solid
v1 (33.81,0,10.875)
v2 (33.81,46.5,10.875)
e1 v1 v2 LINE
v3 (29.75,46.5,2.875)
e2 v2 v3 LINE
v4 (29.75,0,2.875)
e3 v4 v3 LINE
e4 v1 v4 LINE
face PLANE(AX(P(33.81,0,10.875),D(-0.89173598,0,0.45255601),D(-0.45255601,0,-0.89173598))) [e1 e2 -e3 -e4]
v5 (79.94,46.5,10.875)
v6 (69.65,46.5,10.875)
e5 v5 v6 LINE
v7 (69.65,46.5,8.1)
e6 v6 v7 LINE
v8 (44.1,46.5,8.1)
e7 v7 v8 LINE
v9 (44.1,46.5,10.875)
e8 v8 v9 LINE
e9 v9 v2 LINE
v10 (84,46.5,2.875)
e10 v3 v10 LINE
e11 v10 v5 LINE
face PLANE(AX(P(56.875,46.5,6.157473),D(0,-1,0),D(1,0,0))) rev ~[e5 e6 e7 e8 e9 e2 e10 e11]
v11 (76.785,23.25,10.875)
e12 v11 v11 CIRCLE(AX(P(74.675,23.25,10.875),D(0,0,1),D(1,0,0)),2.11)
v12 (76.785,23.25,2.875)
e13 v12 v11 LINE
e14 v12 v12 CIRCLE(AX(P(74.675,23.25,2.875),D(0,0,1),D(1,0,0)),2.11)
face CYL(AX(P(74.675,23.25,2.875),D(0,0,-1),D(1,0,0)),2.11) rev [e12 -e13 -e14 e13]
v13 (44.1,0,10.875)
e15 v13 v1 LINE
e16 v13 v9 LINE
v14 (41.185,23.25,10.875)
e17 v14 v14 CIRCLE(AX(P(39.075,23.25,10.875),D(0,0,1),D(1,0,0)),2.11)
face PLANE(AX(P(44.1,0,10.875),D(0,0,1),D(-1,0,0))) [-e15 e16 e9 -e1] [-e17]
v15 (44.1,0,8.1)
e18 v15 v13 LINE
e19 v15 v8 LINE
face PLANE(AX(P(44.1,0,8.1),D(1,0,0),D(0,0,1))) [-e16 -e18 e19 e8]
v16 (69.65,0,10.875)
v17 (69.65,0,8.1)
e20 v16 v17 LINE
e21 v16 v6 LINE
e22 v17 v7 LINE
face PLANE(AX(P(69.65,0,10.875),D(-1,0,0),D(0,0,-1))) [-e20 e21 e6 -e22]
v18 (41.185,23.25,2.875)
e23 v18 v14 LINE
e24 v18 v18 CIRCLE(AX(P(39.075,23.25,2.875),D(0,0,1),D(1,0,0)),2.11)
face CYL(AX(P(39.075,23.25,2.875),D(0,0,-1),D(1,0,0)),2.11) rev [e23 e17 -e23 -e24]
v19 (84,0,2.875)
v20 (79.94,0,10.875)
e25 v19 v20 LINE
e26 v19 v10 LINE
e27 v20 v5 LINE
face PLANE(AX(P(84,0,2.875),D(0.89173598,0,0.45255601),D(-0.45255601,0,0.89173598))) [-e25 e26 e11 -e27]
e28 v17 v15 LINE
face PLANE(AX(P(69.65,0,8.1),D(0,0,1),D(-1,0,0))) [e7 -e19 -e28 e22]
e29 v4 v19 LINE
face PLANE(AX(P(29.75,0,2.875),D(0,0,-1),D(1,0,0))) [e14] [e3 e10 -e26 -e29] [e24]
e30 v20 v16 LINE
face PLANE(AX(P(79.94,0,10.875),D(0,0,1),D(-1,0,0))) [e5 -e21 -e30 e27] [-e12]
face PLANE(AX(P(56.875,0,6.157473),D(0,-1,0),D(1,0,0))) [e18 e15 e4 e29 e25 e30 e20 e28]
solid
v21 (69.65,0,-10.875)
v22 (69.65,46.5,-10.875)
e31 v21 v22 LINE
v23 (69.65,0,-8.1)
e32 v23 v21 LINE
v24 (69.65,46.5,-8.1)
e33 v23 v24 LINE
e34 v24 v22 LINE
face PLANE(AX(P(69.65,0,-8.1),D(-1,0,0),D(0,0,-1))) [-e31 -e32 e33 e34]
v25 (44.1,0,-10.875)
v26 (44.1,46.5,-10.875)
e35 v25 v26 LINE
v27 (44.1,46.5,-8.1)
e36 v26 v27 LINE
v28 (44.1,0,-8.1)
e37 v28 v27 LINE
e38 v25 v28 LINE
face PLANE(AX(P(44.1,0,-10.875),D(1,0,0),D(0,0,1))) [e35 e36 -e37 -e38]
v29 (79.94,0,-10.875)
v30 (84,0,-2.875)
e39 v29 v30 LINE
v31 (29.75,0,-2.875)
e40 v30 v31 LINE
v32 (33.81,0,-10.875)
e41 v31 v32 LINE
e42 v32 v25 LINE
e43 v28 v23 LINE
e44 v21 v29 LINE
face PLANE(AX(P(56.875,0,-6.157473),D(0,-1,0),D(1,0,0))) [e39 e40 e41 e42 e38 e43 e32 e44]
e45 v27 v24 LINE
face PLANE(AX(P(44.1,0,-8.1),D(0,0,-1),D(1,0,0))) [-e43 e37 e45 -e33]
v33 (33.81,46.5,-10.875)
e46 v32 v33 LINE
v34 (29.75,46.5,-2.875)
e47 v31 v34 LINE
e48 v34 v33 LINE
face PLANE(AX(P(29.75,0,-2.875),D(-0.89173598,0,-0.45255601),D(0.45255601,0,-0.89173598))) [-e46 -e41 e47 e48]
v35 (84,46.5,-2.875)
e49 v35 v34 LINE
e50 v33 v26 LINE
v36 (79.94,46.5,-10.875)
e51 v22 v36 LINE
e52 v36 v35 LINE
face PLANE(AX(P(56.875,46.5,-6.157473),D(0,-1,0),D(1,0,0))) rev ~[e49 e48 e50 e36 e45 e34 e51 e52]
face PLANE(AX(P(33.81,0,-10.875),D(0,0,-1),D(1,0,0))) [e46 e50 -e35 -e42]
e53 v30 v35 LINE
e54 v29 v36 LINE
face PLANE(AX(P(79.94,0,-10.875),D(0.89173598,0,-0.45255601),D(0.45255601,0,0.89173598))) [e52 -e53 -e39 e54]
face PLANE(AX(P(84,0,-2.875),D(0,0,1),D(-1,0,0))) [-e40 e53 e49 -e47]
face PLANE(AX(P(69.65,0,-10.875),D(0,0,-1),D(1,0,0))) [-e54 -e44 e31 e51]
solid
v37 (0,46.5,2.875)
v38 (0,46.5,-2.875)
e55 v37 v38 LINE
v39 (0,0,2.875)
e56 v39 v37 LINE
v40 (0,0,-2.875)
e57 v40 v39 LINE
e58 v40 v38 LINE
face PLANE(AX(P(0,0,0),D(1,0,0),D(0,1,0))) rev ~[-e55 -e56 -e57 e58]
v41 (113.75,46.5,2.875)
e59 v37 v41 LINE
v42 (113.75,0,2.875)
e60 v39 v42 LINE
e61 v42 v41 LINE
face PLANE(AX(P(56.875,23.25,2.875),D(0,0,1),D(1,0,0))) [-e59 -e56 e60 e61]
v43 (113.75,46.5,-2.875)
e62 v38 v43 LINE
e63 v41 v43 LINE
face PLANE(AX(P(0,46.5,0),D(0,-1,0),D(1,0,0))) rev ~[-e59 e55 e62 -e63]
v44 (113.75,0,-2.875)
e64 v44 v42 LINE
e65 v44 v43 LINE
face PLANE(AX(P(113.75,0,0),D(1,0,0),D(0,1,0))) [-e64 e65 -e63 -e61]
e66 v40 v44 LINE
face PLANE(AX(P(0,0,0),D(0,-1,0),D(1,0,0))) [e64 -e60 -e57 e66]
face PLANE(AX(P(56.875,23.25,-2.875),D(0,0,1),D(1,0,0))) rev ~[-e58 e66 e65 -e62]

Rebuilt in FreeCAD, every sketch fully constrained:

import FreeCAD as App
import Part
import Sketcher

V = App.Vector

doc = App.newDocument("Part")
body = doc.addObject("PartDesign::Body", "Body")

# Sketch on XY plane
sketch1 = doc.addObject("Sketcher::SketchObject", "Sketch")
body.addObject(sketch1)
sketch1.AttachmentSupport = (doc.XY_Plane, [""])
sketch1.MapMode = "FlatFace"
sketch1.addGeometry([
    Part.LineSegment(V(0, 46, 0), V(0, 0, 0)),
    Part.LineSegment(V(0, 0, 0), V(114, 0, 0)),
    Part.LineSegment(V(114, 0, 0), V(114, 46, 0)),
    Part.LineSegment(V(114, 46, 0), V(0, 46, 0)),
], False)
sketch1.addConstraint([
    Sketcher.Constraint("Coincident", 0, 2, 1, 1),
    Sketcher.Constraint("Coincident", 1, 2, 2, 1),
    Sketcher.Constraint("Coincident", 2, 2, 3, 1),
    Sketcher.Constraint("Coincident", 3, 2, 0, 1),
    Sketcher.Constraint("Vertical", 0),
    Sketcher.Constraint("Horizontal", 1),
    Sketcher.Constraint("Vertical", 2),
    Sketcher.Constraint("Horizontal", 3),
    Sketcher.Constraint("Coincident", 0, 2, -1, 1),
    Sketcher.Constraint("DistanceY", 0, 2, 0, 1, 46.5),
    Sketcher.Constraint("DistanceX", 1, 1, 1, 2, 113.75),
])
pad1 = doc.addObject("PartDesign::Pad", "Pad")
body.addObject(pad1)
pad1.Profile = sketch1
pad1.Length = 5.75
pad1.Midplane = True
body2 = doc.addObject("PartDesign::Body", "Body001")
body2.AllowCompound = True

# Sketch on XZ plane
sketch2 = doc.addObject("Sketcher::SketchObject", "Sketch001")
body2.addObject(sketch2)
sketch2.AttachmentSupport = (doc.getObject("XZ_Plane001"), [""])
sketch2.MapMode = "FlatFace"
sketch2.addGeometry([
    Part.LineSegment(V(84, -2.9, 0), V(29.8, -2.9, 0)),  # 0
    Part.LineSegment(V(29.8, -2.9, 0), V(33.8, -10.9, 0)),  # 1
    Part.LineSegment(V(33.8, -10.9, 0), V(44.1, -10.9, 0)),  # 2
    Part.LineSegment(V(44.1, -10.9, 0), V(44.1, -8.1, 0)),  # 3
    Part.LineSegment(V(44.1, -8.1, 0), V(69.7, -8.1, 0)),  # 4
    Part.LineSegment(V(69.7, -8.1, 0), V(69.7, -10.9, 0)),  # 5
    Part.LineSegment(V(69.7, -10.9, 0), V(79.9, -10.9, 0)),  # 6
    Part.LineSegment(V(79.9, -10.9, 0), V(84, -2.9, 0)),  # 7
    Part.LineSegment(V(33.8, 10.9, 0), V(29.8, 2.9, 0)),  # 8
    Part.LineSegment(V(29.8, 2.9, 0), V(84, 2.9, 0)),  # 9
    Part.LineSegment(V(84, 2.9, 0), V(79.9, 10.9, 0)),  # 10
    Part.LineSegment(V(79.9, 10.9, 0), V(69.7, 10.9, 0)),  # 11
    Part.LineSegment(V(69.7, 10.9, 0), V(69.7, 8.1, 0)),  # 12
    Part.LineSegment(V(69.7, 8.1, 0), V(44.1, 8.1, 0)),  # 13
    Part.LineSegment(V(44.1, 8.1, 0), V(44.1, 10.9, 0)),  # 14
    Part.LineSegment(V(44.1, 10.9, 0), V(33.8, 10.9, 0)),  # 15
], False)
sketch2.addConstraint([
    Sketcher.Constraint("Coincident", 0, 2, 1, 1),
    Sketcher.Constraint("Coincident", 1, 2, 2, 1),
    Sketcher.Constraint("Coincident", 2, 2, 3, 1),
    Sketcher.Constraint("Coincident", 3, 2, 4, 1),
    Sketcher.Constraint("Coincident", 4, 2, 5, 1),
    Sketcher.Constraint("Coincident", 5, 2, 6, 1),
    Sketcher.Constraint("Coincident", 6, 2, 7, 1),
    Sketcher.Constraint("Coincident", 7, 2, 0, 1),
    Sketcher.Constraint("Coincident", 8, 2, 9, 1),
    Sketcher.Constraint("Coincident", 9, 2, 10, 1),
    Sketcher.Constraint("Coincident", 10, 2, 11, 1),
    Sketcher.Constraint("Coincident", 11, 2, 12, 1),
    Sketcher.Constraint("Coincident", 12, 2, 13, 1),
    Sketcher.Constraint("Coincident", 13, 2, 14, 1),
    Sketcher.Constraint("Coincident", 14, 2, 15, 1),
    Sketcher.Constraint("Coincident", 15, 2, 8, 1),
    Sketcher.Constraint("Horizontal", 0),
    Sketcher.Constraint("Horizontal", 2),
    Sketcher.Constraint("Vertical", 3),
    Sketcher.Constraint("Horizontal", 4),
    Sketcher.Constraint("Vertical", 5),
    Sketcher.Constraint("Horizontal", 6),
    Sketcher.Constraint("Horizontal", 9),
    Sketcher.Constraint("Horizontal", 11),
    Sketcher.Constraint("Vertical", 12),
    Sketcher.Constraint("Horizontal", 13),
    Sketcher.Constraint("Vertical", 14),
    Sketcher.Constraint("Horizontal", 15),
    Sketcher.Constraint("Symmetric", 0, 2, 8, 2, -1),
    Sketcher.Constraint("Symmetric", 6, 2, 10, 2, -1),
    Sketcher.Constraint("Symmetric", 4, 2, 12, 2, -1),
    Sketcher.Constraint("Symmetric", 2, 2, 14, 2, -1),
    Sketcher.Constraint("Parallel", 7, 8),
    Sketcher.Constraint("Parallel", 1, 10),
    Sketcher.Constraint("Horizontal", 2, 2, 5, 2),
    Sketcher.Constraint("Vertical", 7, 2, 9, 2),
    Sketcher.Constraint("Equal", 2, 6),
    Sketcher.Constraint("DistanceX", -1, 1, 7, 2, 84.0),
    Sketcher.Constraint("DistanceY", 1, 2, 0, 2, 8.0),
    Sketcher.Constraint("DistanceX", 0, 2, 0, 1, 54.25),
    Sketcher.Constraint("DistanceX", 2, 1, 2, 2, 10.29),
    Sketcher.Constraint("DistanceX", 4, 1, 4, 2, 25.55),
    Sketcher.Constraint("DistanceY", 3, 2, -1, 1, 8.1),
    Sketcher.Constraint("DistanceY", 3, 1, 3, 2, 2.775),
])
pad2 = doc.addObject("PartDesign::Pad", "Pad001")
body2.addObject(pad2)
pad2.Profile = sketch2
pad2.Length = 46.5
pad2.Reversed = True

# Sketch on XY plane
sketch3 = doc.addObject("Sketcher::SketchObject", "Sketch002")
body2.addObject(sketch3)
sketch3.AttachmentSupport = (doc.getObject("XY_Plane001"), [""])
sketch3.MapMode = "FlatFace"
sketch3.AttachmentOffset = App.Placement(V(0, 0, 2.875), App.Rotation())
sketch3.addGeometry([
    Part.Circle(V(39.1, 23.2, 0), V(0, 0, 1), 2.1),
    Part.Circle(V(74.7, 23.2, 0), V(0, 0, 1), 2.1),
], False)
sketch3.addConstraint([
    Sketcher.Constraint("Equal", 0, 1),
    Sketcher.Constraint("Horizontal", 0, 3, 1, 3),
    Sketcher.Constraint("Diameter", 0, 4.22),
    Sketcher.Constraint("DistanceX", 0, 3, 1, 3, 35.6),
    Sketcher.Constraint("DistanceY", -1, 1, 0, 3, 23.25),
    Sketcher.Constraint("DistanceX", -1, 1, 0, 3, 39.075),
])
pocket1 = doc.addObject("PartDesign::Pocket", "Pocket")
body2.addObject(pocket1)
pocket1.Profile = sketch3
pocket1.Type = "ThroughAll"
pocket1.Reversed = True

doc.recompute()
